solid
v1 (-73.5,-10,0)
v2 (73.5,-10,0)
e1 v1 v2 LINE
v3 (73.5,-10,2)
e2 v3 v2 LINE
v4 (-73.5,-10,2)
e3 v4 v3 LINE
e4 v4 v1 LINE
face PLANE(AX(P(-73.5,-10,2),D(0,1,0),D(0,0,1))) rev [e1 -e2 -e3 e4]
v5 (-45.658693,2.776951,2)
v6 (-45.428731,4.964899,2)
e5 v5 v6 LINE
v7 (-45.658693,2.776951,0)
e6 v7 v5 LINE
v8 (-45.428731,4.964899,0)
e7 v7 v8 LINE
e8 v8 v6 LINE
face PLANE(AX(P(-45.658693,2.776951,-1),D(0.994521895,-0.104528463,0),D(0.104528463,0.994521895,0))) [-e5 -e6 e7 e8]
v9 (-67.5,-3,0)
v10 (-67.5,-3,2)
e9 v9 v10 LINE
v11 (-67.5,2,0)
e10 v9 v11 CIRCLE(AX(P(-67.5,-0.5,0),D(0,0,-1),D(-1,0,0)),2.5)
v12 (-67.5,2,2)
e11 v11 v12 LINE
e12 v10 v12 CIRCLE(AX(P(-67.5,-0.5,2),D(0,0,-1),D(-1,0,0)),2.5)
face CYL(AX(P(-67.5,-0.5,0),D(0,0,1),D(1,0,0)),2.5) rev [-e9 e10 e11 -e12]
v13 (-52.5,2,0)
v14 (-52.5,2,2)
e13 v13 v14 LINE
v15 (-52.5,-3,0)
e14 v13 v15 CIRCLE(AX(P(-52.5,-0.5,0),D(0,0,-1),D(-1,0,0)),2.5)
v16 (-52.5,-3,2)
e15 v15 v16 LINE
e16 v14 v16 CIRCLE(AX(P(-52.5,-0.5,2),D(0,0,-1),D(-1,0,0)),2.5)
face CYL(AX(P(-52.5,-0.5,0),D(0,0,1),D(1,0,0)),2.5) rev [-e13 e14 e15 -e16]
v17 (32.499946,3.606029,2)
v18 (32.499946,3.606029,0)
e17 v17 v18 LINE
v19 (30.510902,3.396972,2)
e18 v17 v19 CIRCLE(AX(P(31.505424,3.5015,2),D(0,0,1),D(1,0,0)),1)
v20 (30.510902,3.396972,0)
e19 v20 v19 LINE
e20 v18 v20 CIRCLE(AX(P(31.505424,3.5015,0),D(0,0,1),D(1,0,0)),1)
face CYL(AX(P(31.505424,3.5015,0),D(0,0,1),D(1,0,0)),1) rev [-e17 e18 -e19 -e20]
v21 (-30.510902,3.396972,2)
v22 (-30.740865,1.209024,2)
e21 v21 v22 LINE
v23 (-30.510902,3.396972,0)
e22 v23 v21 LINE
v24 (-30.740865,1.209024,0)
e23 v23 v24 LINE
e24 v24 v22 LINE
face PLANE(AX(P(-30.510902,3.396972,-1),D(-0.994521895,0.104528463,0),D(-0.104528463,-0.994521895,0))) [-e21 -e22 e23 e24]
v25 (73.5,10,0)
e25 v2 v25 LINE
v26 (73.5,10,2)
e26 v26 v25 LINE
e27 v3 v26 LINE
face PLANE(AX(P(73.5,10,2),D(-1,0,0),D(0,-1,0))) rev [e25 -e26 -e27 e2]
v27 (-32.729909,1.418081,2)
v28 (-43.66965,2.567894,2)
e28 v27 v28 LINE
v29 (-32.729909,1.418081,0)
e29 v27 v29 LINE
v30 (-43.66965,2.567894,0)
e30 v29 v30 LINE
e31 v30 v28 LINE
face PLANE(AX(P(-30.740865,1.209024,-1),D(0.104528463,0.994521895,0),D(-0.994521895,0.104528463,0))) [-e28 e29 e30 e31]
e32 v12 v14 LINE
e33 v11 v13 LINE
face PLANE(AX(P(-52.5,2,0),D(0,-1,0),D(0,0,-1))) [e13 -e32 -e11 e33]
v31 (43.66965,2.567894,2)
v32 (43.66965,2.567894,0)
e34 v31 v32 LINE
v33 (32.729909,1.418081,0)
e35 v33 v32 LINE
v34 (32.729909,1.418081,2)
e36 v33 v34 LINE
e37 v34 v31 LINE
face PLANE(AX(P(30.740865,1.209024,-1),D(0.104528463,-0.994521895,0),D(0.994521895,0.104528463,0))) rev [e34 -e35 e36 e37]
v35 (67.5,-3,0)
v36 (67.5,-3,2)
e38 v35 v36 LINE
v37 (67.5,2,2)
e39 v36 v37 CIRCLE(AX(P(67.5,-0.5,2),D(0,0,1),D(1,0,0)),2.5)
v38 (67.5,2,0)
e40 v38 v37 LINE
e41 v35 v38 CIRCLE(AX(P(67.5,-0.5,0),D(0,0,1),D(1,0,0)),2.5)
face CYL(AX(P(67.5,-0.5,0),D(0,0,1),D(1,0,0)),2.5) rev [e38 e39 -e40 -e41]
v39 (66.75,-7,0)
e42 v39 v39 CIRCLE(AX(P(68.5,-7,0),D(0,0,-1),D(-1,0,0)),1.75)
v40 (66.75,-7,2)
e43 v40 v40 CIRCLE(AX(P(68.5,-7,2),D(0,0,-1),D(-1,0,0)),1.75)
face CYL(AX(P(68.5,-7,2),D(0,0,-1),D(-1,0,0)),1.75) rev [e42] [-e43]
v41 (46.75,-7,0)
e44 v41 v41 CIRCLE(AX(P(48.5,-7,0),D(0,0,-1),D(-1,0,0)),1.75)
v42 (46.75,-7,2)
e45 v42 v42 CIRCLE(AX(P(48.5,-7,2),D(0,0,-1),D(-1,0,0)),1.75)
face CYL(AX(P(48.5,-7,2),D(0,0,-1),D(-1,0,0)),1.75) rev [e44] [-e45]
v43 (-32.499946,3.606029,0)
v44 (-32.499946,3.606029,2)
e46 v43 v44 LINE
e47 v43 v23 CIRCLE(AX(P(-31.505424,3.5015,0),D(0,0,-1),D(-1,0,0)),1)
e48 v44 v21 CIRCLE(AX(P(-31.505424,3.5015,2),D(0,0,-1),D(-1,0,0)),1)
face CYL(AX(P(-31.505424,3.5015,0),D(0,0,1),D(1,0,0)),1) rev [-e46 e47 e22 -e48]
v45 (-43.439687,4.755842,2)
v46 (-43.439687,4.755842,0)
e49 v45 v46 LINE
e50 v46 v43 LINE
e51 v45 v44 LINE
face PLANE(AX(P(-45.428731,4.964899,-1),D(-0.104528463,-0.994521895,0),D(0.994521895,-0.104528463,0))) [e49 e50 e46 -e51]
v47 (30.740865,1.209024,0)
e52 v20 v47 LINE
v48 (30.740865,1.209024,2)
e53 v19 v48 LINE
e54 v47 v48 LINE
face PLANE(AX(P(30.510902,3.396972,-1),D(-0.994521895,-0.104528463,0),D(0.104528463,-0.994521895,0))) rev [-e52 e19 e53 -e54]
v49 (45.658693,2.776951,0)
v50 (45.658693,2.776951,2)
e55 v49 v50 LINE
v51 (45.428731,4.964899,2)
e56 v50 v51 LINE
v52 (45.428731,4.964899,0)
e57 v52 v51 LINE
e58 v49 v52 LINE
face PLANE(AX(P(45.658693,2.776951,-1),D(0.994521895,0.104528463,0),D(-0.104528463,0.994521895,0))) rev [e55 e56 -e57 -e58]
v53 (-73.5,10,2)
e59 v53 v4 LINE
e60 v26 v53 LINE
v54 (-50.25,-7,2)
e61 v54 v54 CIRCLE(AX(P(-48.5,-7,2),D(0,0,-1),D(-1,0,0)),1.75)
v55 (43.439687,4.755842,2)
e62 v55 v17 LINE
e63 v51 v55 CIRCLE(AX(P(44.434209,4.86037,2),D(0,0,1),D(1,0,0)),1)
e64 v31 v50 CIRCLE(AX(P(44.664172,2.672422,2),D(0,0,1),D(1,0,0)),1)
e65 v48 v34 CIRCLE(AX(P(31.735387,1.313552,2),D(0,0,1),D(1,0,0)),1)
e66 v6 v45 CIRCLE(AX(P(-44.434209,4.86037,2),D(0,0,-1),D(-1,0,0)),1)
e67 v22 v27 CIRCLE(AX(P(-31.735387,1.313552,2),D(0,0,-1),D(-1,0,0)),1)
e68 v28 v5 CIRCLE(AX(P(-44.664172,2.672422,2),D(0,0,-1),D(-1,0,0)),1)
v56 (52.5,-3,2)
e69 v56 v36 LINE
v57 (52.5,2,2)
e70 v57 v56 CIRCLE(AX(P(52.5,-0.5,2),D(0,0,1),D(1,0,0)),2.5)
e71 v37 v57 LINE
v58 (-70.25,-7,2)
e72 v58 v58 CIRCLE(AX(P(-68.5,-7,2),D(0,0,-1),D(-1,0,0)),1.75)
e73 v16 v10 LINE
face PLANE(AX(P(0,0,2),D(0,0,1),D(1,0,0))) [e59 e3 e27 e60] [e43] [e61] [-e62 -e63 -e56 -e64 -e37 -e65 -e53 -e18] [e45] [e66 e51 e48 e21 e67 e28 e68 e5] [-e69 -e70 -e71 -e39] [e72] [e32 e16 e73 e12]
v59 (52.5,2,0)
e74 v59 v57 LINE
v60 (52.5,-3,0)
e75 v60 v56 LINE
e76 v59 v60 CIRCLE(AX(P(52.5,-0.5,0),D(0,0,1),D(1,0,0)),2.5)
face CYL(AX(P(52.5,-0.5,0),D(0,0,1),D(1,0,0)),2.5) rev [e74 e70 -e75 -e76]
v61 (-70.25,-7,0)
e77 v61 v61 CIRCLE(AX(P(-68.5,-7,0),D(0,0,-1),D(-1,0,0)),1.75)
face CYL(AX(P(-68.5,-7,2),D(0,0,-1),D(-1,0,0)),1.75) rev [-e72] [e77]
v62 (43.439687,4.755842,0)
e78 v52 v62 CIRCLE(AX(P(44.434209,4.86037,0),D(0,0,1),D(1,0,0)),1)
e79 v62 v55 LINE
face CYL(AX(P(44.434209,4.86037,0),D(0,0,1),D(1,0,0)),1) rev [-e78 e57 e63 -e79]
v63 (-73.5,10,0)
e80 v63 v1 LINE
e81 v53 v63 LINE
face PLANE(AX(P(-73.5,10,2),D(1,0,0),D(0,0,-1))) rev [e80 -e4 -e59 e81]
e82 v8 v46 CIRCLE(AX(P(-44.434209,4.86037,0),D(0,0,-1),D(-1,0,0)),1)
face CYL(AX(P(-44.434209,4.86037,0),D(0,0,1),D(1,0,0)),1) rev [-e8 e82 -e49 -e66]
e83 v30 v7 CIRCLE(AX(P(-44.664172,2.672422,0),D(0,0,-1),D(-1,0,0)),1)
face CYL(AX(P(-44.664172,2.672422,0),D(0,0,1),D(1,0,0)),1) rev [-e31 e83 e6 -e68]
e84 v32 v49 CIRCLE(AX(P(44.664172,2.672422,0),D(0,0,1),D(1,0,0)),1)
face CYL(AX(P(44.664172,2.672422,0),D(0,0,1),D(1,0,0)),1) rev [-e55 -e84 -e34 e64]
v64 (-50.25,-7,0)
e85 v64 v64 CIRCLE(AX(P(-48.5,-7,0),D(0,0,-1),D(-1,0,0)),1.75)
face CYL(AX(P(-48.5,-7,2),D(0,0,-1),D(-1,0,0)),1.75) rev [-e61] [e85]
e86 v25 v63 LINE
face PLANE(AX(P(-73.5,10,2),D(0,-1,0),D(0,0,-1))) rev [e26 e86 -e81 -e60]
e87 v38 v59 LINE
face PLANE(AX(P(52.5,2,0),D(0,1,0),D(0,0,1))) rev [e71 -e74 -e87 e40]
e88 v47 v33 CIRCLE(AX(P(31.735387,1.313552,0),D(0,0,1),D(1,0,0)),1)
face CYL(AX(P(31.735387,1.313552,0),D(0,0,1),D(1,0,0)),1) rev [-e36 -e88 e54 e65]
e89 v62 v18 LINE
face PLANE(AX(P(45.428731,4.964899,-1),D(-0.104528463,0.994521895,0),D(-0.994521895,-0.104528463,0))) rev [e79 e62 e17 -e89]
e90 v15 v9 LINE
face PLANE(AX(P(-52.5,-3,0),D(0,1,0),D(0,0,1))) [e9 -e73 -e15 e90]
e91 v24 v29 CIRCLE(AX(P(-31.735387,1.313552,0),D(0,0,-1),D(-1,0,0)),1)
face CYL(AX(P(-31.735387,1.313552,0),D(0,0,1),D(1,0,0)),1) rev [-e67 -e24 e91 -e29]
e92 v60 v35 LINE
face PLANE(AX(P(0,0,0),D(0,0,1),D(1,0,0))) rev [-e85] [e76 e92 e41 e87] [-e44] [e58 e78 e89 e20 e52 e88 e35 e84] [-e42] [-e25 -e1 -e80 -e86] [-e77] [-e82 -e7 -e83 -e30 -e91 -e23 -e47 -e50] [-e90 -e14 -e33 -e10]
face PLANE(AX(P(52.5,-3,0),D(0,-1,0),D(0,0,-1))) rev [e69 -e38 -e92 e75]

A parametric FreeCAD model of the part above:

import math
import FreeCAD as App
import Part
import Sketcher
from FreeCAD import Vector
Q = App.Units.Quantity

doc = App.newDocument("Part")
params = doc.addObject("Spreadsheet::Sheet", "Params")
for row, (alias, value) in enumerate([
    ("sketch1_width", "147 mm"),
    ("sketch1_height", "20 mm"),
    ("pad1_length", "2 mm"),
    ("sketch2_length", "15 mm"),
    ("sketch2_length2", "2.2 mm"),
    ("pocket1_length", "3 mm"),
    ("sketch3_diameter", "2 mm"),
    ("sketch4_diameter", "3.5 mm"),
    ("sketch5_radius", "2.5 mm"),
    ("sketch5_width", "15 mm"),
], start=1):
    params.set(f"A{row}", alias)
    params.set(f"B{row}", "=" + value)
    params.setAlias(f"B{row}", alias)

body = doc.addObject("PartDesign::Body", "Body")

# Sketch on XY plane
sketch1 = body.newObject("Sketcher::SketchObject", "Sketch")
sketch1.AttachmentSupport = (doc.getObject("XY_Plane"), [""])
sketch1.MapMode = "FlatFace"
sketch1.addGeometry([
    Part.LineSegment(Vector(-74, 10, 0), Vector(-74, -10, 0)),
    Part.LineSegment(Vector(-74, -10, 0), Vector(74, -10, 0)),
    Part.LineSegment(Vector(74, -10, 0), Vector(74, 10, 0)),
    Part.LineSegment(Vector(74, 10, 0), Vector(-74, 10, 0)),
], False)
sketch1.addConstraint([
    Sketcher.Constraint("Coincident", 0, 2, 1, 1),
    Sketcher.Constraint("Coincident", 1, 2, 2, 1),
    Sketcher.Constraint("Coincident", 2, 2, 3, 1),
    Sketcher.Constraint("Coincident", 3, 2, 0, 1),
    Sketcher.Constraint("Vertical", 0),
    Sketcher.Constraint("Horizontal", 1),
    Sketcher.Constraint("Vertical", 2),
    Sketcher.Constraint("Horizontal", 3),
    Sketcher.Constraint("Symmetric", 0, 2, 2, 2, -1, 1),
    Sketcher.Constraint("DistanceX", 1, 1, 1, 2, Q("147 mm")),
    Sketcher.Constraint("DistanceY", 0, 2, 0, 1, Q("20 mm")),
])
sketch1.setExpression("Constraints[9]", "Params.sketch1_width")
sketch1.setExpression("Constraints[10]", "Params.sketch1_height")
pad1 = body.newObject("PartDesign::Pad", "Pad")
pad1.Profile = sketch1
pad1.setExpression("Length", "Params.pad1_length")

# Sketch on XY plane
sketch2 = body.newObject("Sketcher::SketchObject", "Sketch001")
sketch2.AttachmentSupport = (doc.getObject("XY_Plane"), [""])
sketch2.MapMode = "FlatFace"
sketch2.AttachmentOffset = App.Placement(Vector(0, 0, 2), App.Rotation())
sketch2.addGeometry([
    Part.LineSegment(Vector(30.5, 3.4, 0), Vector(30.7, 1.2, 0)),
    Part.LineSegment(Vector(30.7, 1.2, 0), Vector(45.7, 2.8, 0)),
    Part.LineSegment(Vector(45.7, 2.8, 0), Vector(45.4, 5, 0)),
    Part.LineSegment(Vector(45.4, 5, 0), Vector(30.5, 3.4, 0)),
], False)
sketch2.addConstraint([
    Sketcher.Constraint("Coincident", 0, 2, 1, 1),
    Sketcher.Constraint("Coincident", 1, 2, 2, 1),
    Sketcher.Constraint("Coincident", 2, 2, 3, 1),
    Sketcher.Constraint("Coincident", 3, 2, 0, 1),
    Sketcher.Constraint("Perpendicular", 0, 1),
    Sketcher.Constraint("Perpendicular", 1, 2),
    Sketcher.Constraint("Perpendicular", 2, 3),
    Sketcher.Constraint("Angle", 0, Q("-84 deg")),
    Sketcher.Constraint("Distance", 1, Q("15 mm")),
    Sketcher.Constraint("Distance", 0, Q("2.2 mm")),
    Sketcher.Constraint("DistanceY", -1, 1, 2, 2, Q("4.964899 mm")),
    Sketcher.Constraint("DistanceX", -1, 1, 2, 2, Q("45.428731 mm")),
])
sketch2.setExpression("Constraints[8]", "Params.sketch2_length")
sketch2.setExpression("Constraints[9]", "Params.sketch2_length2")
pocket1 = body.newObject("PartDesign::Pocket", "Pocket")
pocket1.Profile = sketch2
pocket1.setExpression("Length", "Params.pocket1_length")

# Sketch on XY plane
sketch3 = body.newObject("Sketcher::SketchObject", "Sketch002")
sketch3.AttachmentSupport = (doc.getObject("XY_Plane"), [""])
sketch3.MapMode = "FlatFace"
sketch3.AttachmentOffset = App.Placement(Vector(0, 0, 2), App.Rotation())
sketch3.addGeometry([
    Part.Circle(Vector(31.5, 3.5, 0), Vector(0, 0, 1), 1),
    Part.Circle(Vector(31.7, 1.3, 0), Vector(0, 0, 1), 1),
    Part.Circle(Vector(44.4, 4.9, 0), Vector(0, 0, 1), 1),
    Part.Circle(Vector(44.7, 2.7, 0), Vector(0, 0, 1), 1),
], False)
sketch3.addConstraint([
    Sketcher.Constraint("Equal", 0, 1),
    Sketcher.Constraint("Equal", 1, 2),
    Sketcher.Constraint("Equal", 2, 3),
    Sketcher.Constraint("Diameter", 0, Q("2 mm")),
    Sketcher.Constraint("DistanceY", -1, 1, 0, 3, Q("3.5015 mm")),
    Sketcher.Constraint("DistanceX", -1, 1, 2, 3, Q("44.434209 mm")),
    Sketcher.Constraint("DistanceY", -1, 1, 2, 3, Q("4.86037 mm")),
    Sketcher.Constraint("DistanceX", -1, 1, 3, 3, Q("44.664172 mm")),
    Sketcher.Constraint("DistanceY", 1, 3, 0, 3, Q("2.187948 mm")),
    Sketcher.Constraint("DistanceY", 3, 3, 2, 3, Q("2.187948 mm")),
    Sketcher.Constraint("DistanceX", -1, 1, 0, 3, Q("31.505424 mm")),
    Sketcher.Constraint("DistanceX", -1, 1, 1, 3, Q("31.735387 mm")),
])
sketch3.setExpression("Constraints[3]", "Params.sketch3_diameter")
pocket2 = body.newObject("PartDesign::Pocket", "Pocket001")
pocket2.Profile = sketch3
pocket2.Type = "ThroughAll"
doc.recompute()

mirrored = body.newObject("PartDesign::Mirrored", "Mirrored")
mirrored.Originals = [pocket1, pocket2]
mirrored.MirrorPlane = (doc.getObject("YZ_Plane"), [""])
body.Tip = mirrored

# Sketch on XY plane
sketch4 = body.newObject("Sketcher::SketchObject", "Sketch003")
sketch4.AttachmentSupport = (doc.getObject("XY_Plane"), [""])
sketch4.MapMode = "FlatFace"
sketch4.addGeometry([
    Part.Circle(Vector(-68.5, -7, 0), Vector(0, 0, 1), 1.8),
    Part.Circle(Vector(-48.5, -7, 0), Vector(0, 0, 1), 1.8),
    Part.Circle(Vector(48.5, -7, 0), Vector(0, 0, 1), 1.8),
    Part.Circle(Vector(68.5, -7, 0), Vector(0, 0, 1), 1.8),
], False)
sketch4.addConstraint([
    Sketcher.Constraint("Equal", 0, 1),
    Sketcher.Constraint("Equal", 1, 2),
    Sketcher.Constraint("Equal", 2, 3),
    Sketcher.Constraint("Symmetric", 1, 3, 2, 3, -2),
    Sketcher.Constraint("Symmetric", 0, 3, 3, 3, -2),
    Sketcher.Constraint("Horizontal", 0, 3, 1, 3),
    Sketcher.Constraint("Diameter", 0, Q("3.5 mm")),
    Sketcher.Constraint("DistanceY", 0, 3, -1, 1, Q("7 mm")),
    Sketcher.Constraint("DistanceX", 0, 3, 1, 3, Q("20 mm")),
    Sketcher.Constraint("DistanceX", 1, 3, 2, 3, Q("97 mm")),
])
sketch4.setExpression("Constraints[6]", "Params.sketch4_diameter")
pocket3 = body.newObject("PartDesign::Pocket", "Pocket002")
pocket3.Profile = sketch4
pocket3.Type = "ThroughAll"
pocket3.Reversed = True

# Sketch on XY plane
sketch5 = body.newObject("Sketcher::SketchObject", "Sketch004")
sketch5.AttachmentSupport = (doc.getObject("XY_Plane"), [""])
sketch5.MapMode = "FlatFace"
sketch5.AttachmentOffset = App.Placement(Vector(0, 0, 2), App.Rotation())
sketch5.addGeometry([
    Part.LineSegment(Vector(67.5, 2, 0), Vector(52.5, 2, 0)),
    Part.ArcOfCircle(Part.Circle(Vector(52.5, -0.5, 0), Vector(0, 0, 1), 2.5), math.radians(90), math.radians(270)),
    Part.LineSegment(Vector(52.5, -3, 0), Vector(67.5, -3, 0)),
    Part.ArcOfCircle(Part.Circle(Vector(67.5, -0.5, 0), Vector(0, 0, 1), 2.5), math.radians(-90), math.radians(90)),
], False)
sketch5.addConstraint([
    Sketcher.Constraint("Tangent", 0, 2, 1, 1),
    Sketcher.Constraint("Tangent", 1, 2, 2, 1),
    Sketcher.Constraint("Tangent", 2, 2, 3, 1),
    Sketcher.Constraint("Tangent", 3, 2, 0, 1),
    Sketcher.Constraint("Horizontal", 0),
    Sketcher.Constraint("Horizontal", 2),
    Sketcher.Constraint("Radius", 1, Q("2.5 mm")),
    Sketcher.Constraint("DistanceX", 0, 2, 0, 1, Q("15 mm")),
    Sketcher.Constraint("DistanceY", -1, 1, 0, 2, Q("2 mm")),
    Sketcher.Constraint("DistanceX", -1, 1, 1, 3, Q("52.5 mm")),
])
sketch5.setExpression("Constraints[6]", "Params.sketch5_radius")
sketch5.setExpression("Constraints[7]", "Params.sketch5_width")
pocket4 = body.newObject("PartDesign::Pocket", "Pocket003")
pocket4.Profile = sketch5
pocket4.Type = "ThroughAll"
doc.recompute()

mirrored2 = body.newObject("PartDesign::Mirrored", "Mirrored001")
mirrored2.Originals = [pocket4]
mirrored2.MirrorPlane = (doc.getObject("YZ_Plane"), [""])
body.Tip = mirrored2

doc.recompute()
